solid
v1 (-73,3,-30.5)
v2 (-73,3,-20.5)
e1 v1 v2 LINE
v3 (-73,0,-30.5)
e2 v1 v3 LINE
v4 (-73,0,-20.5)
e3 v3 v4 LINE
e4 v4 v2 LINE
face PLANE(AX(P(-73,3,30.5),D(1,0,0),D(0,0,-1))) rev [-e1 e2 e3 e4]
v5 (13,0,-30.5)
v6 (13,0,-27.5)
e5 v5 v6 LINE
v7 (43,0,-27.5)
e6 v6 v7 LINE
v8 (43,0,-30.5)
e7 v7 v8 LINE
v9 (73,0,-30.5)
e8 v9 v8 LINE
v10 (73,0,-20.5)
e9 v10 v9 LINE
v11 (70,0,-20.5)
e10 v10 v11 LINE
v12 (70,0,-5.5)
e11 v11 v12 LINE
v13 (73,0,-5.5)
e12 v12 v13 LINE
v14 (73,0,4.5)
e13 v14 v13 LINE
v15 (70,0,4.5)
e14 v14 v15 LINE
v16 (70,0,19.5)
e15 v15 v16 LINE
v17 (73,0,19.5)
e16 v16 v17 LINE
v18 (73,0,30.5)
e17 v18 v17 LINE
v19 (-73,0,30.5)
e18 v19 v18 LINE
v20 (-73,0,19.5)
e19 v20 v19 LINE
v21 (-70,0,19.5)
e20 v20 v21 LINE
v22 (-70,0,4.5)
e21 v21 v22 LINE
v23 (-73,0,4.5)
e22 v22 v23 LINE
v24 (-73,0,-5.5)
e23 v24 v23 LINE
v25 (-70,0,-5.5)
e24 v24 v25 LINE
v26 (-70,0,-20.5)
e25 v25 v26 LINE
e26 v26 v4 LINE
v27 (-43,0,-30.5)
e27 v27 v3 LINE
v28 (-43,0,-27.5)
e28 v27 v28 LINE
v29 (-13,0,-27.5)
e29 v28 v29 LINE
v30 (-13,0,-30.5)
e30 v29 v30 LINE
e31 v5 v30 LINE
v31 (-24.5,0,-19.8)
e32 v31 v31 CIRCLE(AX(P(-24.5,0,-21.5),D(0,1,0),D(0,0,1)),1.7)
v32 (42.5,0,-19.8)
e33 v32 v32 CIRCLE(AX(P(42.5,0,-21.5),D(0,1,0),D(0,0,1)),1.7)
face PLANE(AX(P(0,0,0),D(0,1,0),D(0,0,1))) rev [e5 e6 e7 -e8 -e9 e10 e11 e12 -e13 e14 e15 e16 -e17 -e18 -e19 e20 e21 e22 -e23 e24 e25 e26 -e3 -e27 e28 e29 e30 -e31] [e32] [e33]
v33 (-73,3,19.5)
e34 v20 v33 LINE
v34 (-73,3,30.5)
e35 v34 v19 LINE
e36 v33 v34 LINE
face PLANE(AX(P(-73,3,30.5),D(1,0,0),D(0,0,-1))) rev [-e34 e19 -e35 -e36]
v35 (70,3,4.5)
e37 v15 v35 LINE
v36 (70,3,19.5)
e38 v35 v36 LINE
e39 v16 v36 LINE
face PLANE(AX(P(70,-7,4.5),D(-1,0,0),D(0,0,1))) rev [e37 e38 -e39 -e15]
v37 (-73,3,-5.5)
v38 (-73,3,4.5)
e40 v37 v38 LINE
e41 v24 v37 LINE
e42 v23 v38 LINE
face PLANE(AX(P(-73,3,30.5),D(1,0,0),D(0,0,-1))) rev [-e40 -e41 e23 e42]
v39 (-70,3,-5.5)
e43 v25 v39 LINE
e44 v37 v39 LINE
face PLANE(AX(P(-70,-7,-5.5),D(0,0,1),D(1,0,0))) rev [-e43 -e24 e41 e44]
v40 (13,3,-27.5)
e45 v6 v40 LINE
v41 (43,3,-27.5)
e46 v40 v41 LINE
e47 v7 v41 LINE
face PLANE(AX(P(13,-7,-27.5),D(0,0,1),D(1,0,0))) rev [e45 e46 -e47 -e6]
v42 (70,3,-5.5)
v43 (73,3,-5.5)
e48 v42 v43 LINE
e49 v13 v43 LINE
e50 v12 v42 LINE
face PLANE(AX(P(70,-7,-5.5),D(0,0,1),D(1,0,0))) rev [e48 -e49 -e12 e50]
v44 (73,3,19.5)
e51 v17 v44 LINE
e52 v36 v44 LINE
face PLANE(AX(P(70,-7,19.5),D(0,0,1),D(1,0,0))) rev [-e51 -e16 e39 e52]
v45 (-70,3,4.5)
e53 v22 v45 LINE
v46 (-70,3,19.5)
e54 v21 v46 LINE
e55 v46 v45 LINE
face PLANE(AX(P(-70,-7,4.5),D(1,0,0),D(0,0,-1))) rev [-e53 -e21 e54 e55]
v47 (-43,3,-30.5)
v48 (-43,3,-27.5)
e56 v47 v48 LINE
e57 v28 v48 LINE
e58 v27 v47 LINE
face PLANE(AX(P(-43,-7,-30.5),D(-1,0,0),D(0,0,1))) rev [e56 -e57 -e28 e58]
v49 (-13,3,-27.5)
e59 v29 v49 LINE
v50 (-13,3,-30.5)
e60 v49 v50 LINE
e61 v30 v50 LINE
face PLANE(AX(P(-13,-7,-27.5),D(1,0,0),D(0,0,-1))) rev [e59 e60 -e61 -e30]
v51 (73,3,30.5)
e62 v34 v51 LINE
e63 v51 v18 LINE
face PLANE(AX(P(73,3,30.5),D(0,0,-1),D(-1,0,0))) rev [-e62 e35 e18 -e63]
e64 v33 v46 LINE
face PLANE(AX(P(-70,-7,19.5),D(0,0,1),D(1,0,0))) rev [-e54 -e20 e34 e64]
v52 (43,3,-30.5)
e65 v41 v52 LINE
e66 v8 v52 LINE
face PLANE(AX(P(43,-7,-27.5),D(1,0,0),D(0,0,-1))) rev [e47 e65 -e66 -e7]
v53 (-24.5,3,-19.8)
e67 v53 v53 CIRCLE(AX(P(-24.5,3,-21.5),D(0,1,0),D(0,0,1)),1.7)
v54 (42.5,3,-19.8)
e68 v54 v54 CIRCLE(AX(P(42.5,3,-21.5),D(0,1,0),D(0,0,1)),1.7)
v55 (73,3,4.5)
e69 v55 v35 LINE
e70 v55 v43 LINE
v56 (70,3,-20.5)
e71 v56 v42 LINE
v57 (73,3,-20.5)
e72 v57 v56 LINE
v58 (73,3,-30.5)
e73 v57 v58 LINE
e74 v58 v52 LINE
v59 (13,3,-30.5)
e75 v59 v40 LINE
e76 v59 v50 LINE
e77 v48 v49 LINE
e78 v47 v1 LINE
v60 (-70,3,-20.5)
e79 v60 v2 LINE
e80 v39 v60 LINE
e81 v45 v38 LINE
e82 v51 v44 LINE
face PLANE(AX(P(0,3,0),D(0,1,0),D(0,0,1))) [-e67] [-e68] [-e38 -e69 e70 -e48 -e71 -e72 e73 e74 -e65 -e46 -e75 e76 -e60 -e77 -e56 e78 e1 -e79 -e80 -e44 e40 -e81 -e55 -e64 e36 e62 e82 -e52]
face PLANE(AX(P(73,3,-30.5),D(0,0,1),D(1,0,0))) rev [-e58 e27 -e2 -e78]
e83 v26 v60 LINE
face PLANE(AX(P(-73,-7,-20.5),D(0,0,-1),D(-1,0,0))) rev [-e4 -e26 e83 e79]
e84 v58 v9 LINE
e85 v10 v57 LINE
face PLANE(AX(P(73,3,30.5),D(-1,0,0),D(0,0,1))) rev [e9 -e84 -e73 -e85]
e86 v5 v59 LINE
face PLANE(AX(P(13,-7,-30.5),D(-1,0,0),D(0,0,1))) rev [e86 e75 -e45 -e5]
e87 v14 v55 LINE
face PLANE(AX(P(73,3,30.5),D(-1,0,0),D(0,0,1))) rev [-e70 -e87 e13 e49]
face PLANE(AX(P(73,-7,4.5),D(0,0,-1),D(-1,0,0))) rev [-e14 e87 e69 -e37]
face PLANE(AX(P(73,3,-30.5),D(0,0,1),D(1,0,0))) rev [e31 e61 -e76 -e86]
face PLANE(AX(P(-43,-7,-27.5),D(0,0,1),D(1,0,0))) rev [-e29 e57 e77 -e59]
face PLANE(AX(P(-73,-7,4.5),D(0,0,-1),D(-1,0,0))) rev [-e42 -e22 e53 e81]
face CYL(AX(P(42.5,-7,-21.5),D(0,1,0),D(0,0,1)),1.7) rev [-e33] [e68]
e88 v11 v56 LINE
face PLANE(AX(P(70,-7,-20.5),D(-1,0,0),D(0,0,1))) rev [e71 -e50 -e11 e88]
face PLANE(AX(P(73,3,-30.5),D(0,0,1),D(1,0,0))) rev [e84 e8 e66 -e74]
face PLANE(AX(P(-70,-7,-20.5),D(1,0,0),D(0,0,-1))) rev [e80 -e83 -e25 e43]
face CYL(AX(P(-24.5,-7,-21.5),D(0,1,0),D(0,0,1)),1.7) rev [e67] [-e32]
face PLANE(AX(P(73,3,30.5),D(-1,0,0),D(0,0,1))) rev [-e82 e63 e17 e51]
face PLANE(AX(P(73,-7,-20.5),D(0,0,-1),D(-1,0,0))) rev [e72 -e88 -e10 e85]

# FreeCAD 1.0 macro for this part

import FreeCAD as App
import Part
import Sketcher

V = App.Vector
Q = App.Units.Quantity

doc = App.newDocument("Part")
params = doc.addObject("Spreadsheet::Sheet", "Params")
for row, (alias, value) in enumerate([
    ("sketch1_width", "146 mm"),
    ("sketch1_height", "61 mm"),
    ("pad1_length", "3 mm"),
    ("sketch2_diameter", "3.4 mm"),
    ("sketch2_width", "3 mm"),
    ("sketch2_width2", "30 mm"),
    ("sketch2_height", "15 mm"),
    ("pocket1_length", "10 mm"),
], start=1):
    params.set(f"A{row}", alias)
    params.set(f"B{row}", "=" + value)
    params.setAlias(f"B{row}", alias)

body = doc.addObject("PartDesign::Body", "Body")

# Sketch on XZ plane
sketch1 = body.newObject("Sketcher::SketchObject", "Sketch")
sketch1.AttachmentSupport = (doc.getObject("XZ_Plane"), [""])
sketch1.MapMode = "FlatFace"
sketch1.addGeometry([
    Part.LineSegment(V(-73, -30, 0), V(-73, 30, 0)),
    Part.LineSegment(V(-73, 30, 0), V(73, 30, 0)),
    Part.LineSegment(V(73, 30, 0), V(73, -30, 0)),
    Part.LineSegment(V(73, -30, 0), V(-73, -30, 0)),
], False)
sketch1.addConstraint([
    Sketcher.Constraint("Coincident", 0, 2, 1, 1),
    Sketcher.Constraint("Coincident", 1, 2, 2, 1),
    Sketcher.Constraint("Coincident", 2, 2, 3, 1),
    Sketcher.Constraint("Coincident", 3, 2, 0, 1),
    Sketcher.Constraint("Vertical", 0),
    Sketcher.Constraint("Horizontal", 1),
    Sketcher.Constraint("Vertical", 2),
    Sketcher.Constraint("Horizontal", 3),
    Sketcher.Constraint("Symmetric", 0, 2, 2, 2, -1, 1),
    Sketcher.Constraint("DistanceX", 1, 1, 1, 2, Q("146 mm")),
    Sketcher.Constraint("DistanceY", 0, 1, 0, 2, Q("61 mm")),
])
sketch1.setExpression("Constraints[9]", "Params.sketch1_width")
sketch1.setExpression("Constraints[10]", "Params.sketch1_height")
pad1 = body.newObject("PartDesign::Pad", "Pad")
pad1.Profile = sketch1
pad1.setExpression("Length", "Params.pad1_length")
pad1.Reversed = True

# Sketch on XZ plane
sketch2 = body.newObject("Sketcher::SketchObject", "Sketch001")
sketch2.AttachmentSupport = (doc.getObject("XZ_Plane"), [""])
sketch2.MapMode = "FlatFace"
sketch2.AttachmentOffset = App.Placement(V(0, 0, -3), App.Rotation())
sketch2.addGeometry([
    Part.Circle(V(-24.5, -21.5, 0), V(0, 0, 1), 1.7),  # 0
    Part.Circle(V(42.5, -21.5, 0), V(0, 0, 1), 1.7),  # 1
    Part.LineSegment(V(-73, -20.5, 0), V(-73, -5.5, 0)),  # 2
    Part.LineSegment(V(-73, -5.5, 0), V(-70, -5.5, 0)),  # 3
    Part.LineSegment(V(-70, -5.5, 0), V(-70, -20.5, 0)),  # 4
    Part.LineSegment(V(-70, -20.5, 0), V(-73, -20.5, 0)),  # 5
    Part.LineSegment(V(-73, 4.5, 0), V(-73, 19.5, 0)),  # 6
    Part.LineSegment(V(-73, 19.5, 0), V(-70, 19.5, 0)),  # 7
    Part.LineSegment(V(-70, 19.5, 0), V(-70, 4.5, 0)),  # 8
    Part.LineSegment(V(-70, 4.5, 0), V(-73, 4.5, 0)),  # 9
    Part.LineSegment(V(70, -20.5, 0), V(70, -5.5, 0)),  # 10
    Part.LineSegment(V(70, -5.5, 0), V(73, -5.5, 0)),  # 11
    Part.LineSegment(V(73, -5.5, 0), V(73, -20.5, 0)),  # 12
    Part.LineSegment(V(73, -20.5, 0), V(70, -20.5, 0)),  # 13
    Part.LineSegment(V(70, 4.5, 0), V(70, 19.5, 0)),  # 14
    Part.LineSegment(V(70, 19.5, 0), V(73, 19.5, 0)),  # 15
    Part.LineSegment(V(73, 19.5, 0), V(73, 4.5, 0)),  # 16
    Part.LineSegment(V(73, 4.5, 0), V(70, 4.5, 0)),  # 17
    Part.LineSegment(V(-43, -30.5, 0), V(-43, -27.5, 0)),  # 18
    Part.LineSegment(V(-43, -27.5, 0), V(-13, -27.5, 0)),  # 19
    Part.LineSegment(V(-13, -27.5, 0), V(-13, -30.5, 0)),  # 20
    Part.LineSegment(V(-13, -30.5, 0), V(-43, -30.5, 0)),  # 21
    Part.LineSegment(V(13, -30.5, 0), V(13, -27.5, 0)),  # 22
    Part.LineSegment(V(13, -27.5, 0), V(43, -27.5, 0)),  # 23
    Part.LineSegment(V(43, -27.5, 0), V(43, -30.5, 0)),  # 24
    Part.LineSegment(V(43, -30.5, 0), V(13, -30.5, 0)),  # 25
], False)
sketch2.addConstraint([
    Sketcher.Constraint("Coincident", 2, 2, 3, 1),
    Sketcher.Constraint("Coincident", 3, 2, 4, 1),
    Sketcher.Constraint("Coincident", 4, 2, 5, 1),
    Sketcher.Constraint("Coincident", 5, 2, 2, 1),
    Sketcher.Constraint("Coincident", 6, 2, 7, 1),
    Sketcher.Constraint("Coincident", 7, 2, 8, 1),
    Sketcher.Constraint("Coincident", 8, 2, 9, 1),
    Sketcher.Constraint("Coincident", 9, 2, 6, 1),
    Sketcher.Constraint("Coincident", 10, 2, 11, 1),
    Sketcher.Constraint("Coincident", 11, 2, 12, 1),
    Sketcher.Constraint("Coincident", 12, 2, 13, 1),
    Sketcher.Constraint("Coincident", 13, 2, 10, 1),
    Sketcher.Constraint("Coincident", 14, 2, 15, 1),
    Sketcher.Constraint("Coincident", 15, 2, 16, 1),
    Sketcher.Constraint("Coincident", 16, 2, 17, 1),
    Sketcher.Constraint("Coincident", 17, 2, 14, 1),
    Sketcher.Constraint("Coincident", 18, 2, 19, 1),
    Sketcher.Constraint("Coincident", 19, 2, 20, 1),
    Sketcher.Constraint("Coincident", 20, 2, 21, 1),
    Sketcher.Constraint("Coincident", 21, 2, 18, 1),
    Sketcher.Constraint("Coincident", 22, 2, 23, 1),
    Sketcher.Constraint("Coincident", 23, 2, 24, 1),
    Sketcher.Constraint("Coincident", 24, 2, 25, 1),
    Sketcher.Constraint("Coincident", 25, 2, 22, 1),
    Sketcher.Constraint("Vertical", 2),
    Sketcher.Constraint("Horizontal", 3),
    Sketcher.Constraint("Vertical", 4),
    Sketcher.Constraint("Horizontal", 5),
    Sketcher.Constraint("Vertical", 6),
    Sketcher.Constraint("Horizontal", 7),
    Sketcher.Constraint("Vertical", 8),
    Sketcher.Constraint("Horizontal", 9),
    Sketcher.Constraint("Vertical", 10),
    Sketcher.Constraint("Horizontal", 11),
    Sketcher.Constraint("Vertical", 12),
    Sketcher.Constraint("Horizontal", 13),
    Sketcher.Constraint("Vertical", 14),
    Sketcher.Constraint("Horizontal", 15),
    Sketcher.Constraint("Vertical", 16),
    Sketcher.Constraint("Horizontal", 17),
    Sketcher.Constraint("Vertical", 18),
    Sketcher.Constraint("Horizontal", 19),
    Sketcher.Constraint("Vertical", 20),
    Sketcher.Constraint("Horizontal", 21),
    Sketcher.Constraint("Vertical", 22),
    Sketcher.Constraint("Horizontal", 23),
    Sketcher.Constraint("Vertical", 24),
    Sketcher.Constraint("Horizontal", 25),
    Sketcher.Constraint("Equal", 0, 1),
    Sketcher.Constraint("Symmetric", 3, 2, 10, 2, -2),
    Sketcher.Constraint("Symmetric", 5, 2, 12, 2, -2),
    Sketcher.Constraint("Symmetric", 7, 2, 14, 2, -2),
    Sketcher.Constraint("Symmetric", 9, 2, 16, 2, -2),
    Sketcher.Constraint("Symmetric", 19, 2, 22, 2, -2),
    Sketcher.Constraint("Symmetric", 21, 2, 24, 2, -2),
    Sketcher.Constraint("Horizontal", 0, 3, 1, 3),
    Sketcher.Constraint("Vertical", 5, 2, 6, 2),
    Sketcher.Constraint("Vertical", 4, 2, 7, 2),
    Sketcher.Constraint("Equal", 4, 6),
    Sketcher.Constraint("Equal", 17, 18),
    Sketcher.Constraint("Diameter", 0, Q("3.4 mm")),
    Sketcher.Constraint("DistanceX", 3, 1, 3, 2, Q("3 mm")),
    Sketcher.Constraint("DistanceX", 19, 1, 19, 2, Q("30 mm")),
    Sketcher.Constraint("DistanceY", 2, 1, 2, 2, Q("15 mm")),
    Sketcher.Constraint("DistanceX", 2, 2, -1, 1, Q("73 mm")),
    Sketcher.Constraint("DistanceX", 18, 2, -1, 1, Q("43 mm")),
    Sketcher.Constraint("DistanceX", 0, 3, 1, 3, Q("67 mm")),
    Sketcher.Constraint("DistanceY", 0, 3, 2, 2, Q("16 mm")),
    Sketcher.Constraint("DistanceY", 2, 2, 6, 2, Q("25 mm")),
    Sketcher.Constraint("DistanceY", 18, 2, 0, 3, Q("6 mm")),
    Sketcher.Constraint("DistanceX", 0, 3, -1, 1, Q("24.5 mm")),
    Sketcher.Constraint("DistanceY", 0, 3, -1, 1, Q("21.5 mm")),
])
sketch2.setExpression("Constraints[60]", "Params.sketch2_diameter")
sketch2.setExpression("Constraints[61]", "Params.sketch2_width")
sketch2.setExpression("Constraints[62]", "Params.sketch2_width2")
sketch2.setExpression("Constraints[63]", "Params.sketch2_height")
pocket1 = body.newObject("PartDesign::Pocket", "Pocket")
pocket1.Profile = sketch2
pocket1.setExpression("Length", "Params.pocket1_length")
pocket1.Reversed = True

doc.recompute()
